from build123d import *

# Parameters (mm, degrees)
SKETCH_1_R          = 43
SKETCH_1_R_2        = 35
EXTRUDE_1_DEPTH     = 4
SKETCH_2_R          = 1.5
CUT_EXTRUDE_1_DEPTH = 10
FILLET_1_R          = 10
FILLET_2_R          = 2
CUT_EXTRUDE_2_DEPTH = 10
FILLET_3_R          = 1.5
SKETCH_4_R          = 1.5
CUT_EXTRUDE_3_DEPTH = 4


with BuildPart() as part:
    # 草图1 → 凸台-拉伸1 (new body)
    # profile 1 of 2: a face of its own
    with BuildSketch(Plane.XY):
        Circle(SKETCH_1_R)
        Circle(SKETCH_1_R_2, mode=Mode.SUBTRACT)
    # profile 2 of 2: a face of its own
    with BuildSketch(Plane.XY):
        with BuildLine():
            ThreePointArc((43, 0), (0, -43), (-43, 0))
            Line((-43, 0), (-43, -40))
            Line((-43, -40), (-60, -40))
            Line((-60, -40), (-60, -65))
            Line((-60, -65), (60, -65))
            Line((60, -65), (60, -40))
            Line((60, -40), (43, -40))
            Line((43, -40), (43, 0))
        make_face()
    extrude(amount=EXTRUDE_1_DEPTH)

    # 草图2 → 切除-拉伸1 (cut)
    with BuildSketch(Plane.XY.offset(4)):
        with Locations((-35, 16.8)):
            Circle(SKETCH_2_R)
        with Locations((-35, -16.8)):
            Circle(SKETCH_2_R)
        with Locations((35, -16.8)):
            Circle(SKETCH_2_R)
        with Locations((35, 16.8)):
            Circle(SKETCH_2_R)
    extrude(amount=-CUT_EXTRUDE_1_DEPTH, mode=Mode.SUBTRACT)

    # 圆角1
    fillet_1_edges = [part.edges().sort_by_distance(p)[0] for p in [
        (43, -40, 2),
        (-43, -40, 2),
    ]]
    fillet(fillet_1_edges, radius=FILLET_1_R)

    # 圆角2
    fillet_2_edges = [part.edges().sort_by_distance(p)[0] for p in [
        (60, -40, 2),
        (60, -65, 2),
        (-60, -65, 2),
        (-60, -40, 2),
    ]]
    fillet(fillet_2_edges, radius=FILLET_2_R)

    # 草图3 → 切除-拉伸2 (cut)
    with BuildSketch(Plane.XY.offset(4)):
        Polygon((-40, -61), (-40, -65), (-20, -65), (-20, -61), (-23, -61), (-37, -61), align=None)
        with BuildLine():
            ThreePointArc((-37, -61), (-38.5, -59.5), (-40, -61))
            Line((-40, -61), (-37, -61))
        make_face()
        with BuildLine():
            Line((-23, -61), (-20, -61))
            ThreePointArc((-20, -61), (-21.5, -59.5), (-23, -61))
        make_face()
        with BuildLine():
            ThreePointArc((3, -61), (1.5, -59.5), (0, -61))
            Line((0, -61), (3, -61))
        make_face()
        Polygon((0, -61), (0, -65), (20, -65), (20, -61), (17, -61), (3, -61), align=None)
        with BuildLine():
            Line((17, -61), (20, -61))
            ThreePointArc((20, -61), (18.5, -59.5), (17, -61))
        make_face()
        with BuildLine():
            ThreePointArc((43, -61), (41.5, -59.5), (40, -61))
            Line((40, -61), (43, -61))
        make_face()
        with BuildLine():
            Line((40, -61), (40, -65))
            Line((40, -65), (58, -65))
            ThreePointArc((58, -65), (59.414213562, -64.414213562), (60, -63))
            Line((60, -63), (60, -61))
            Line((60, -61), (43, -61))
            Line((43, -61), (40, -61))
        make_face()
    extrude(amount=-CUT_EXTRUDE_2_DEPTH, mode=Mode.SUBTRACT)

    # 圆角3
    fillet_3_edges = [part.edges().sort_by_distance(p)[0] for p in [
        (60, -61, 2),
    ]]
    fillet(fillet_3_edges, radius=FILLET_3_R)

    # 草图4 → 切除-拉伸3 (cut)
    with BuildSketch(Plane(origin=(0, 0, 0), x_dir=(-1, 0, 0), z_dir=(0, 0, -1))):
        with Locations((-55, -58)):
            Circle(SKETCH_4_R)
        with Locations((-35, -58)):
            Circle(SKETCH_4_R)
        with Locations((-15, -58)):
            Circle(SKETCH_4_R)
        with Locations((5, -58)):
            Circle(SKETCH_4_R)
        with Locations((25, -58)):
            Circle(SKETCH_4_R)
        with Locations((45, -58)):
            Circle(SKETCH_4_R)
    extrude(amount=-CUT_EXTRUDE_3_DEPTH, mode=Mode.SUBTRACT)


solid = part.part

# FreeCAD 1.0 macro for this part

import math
import FreeCAD as App
import Part
import Sketcher

V = App.Vector
Q = App.Units.Quantity


def edges_at(feature, points):
    """Names of the edges that pass closest to the given points."""
    edges = feature.Shape.Edges
    near = lambda p: min(range(len(edges)), key=lambda i: edges[i].distToShape(Part.Vertex(*p))[0])
    return sorted({f"Edge{near(p) + 1}" for p in points})

doc = App.newDocument("Part")
body = doc.addObject("PartDesign::Body", "Body")

sketch1 = doc.addObject("Sketcher::SketchObject", "Sketch")
body.addObject(sketch1)
sketch1.AttachmentSupport = (doc.XY_Plane, [""])
sketch1.MapMode = "FlatFace"
sketch1.addGeometry([
    Part.ArcOfCircle(Part.Circle(V(0, 0, 0), V(0, 0, 1), 43), math.radians(0), math.radians(180)),
    Part.LineSegment(V(-43, 0, 0), V(-43, -40, 0)),
    Part.LineSegment(V(-43, -40, 0), V(-60, -40, 0)),
    Part.LineSegment(V(-60, -40, 0), V(-60, -65, 0)),
    Part.LineSegment(V(-60, -65, 0), V(60, -65, 0)),
    Part.LineSegment(V(60, -65, 0), V(60, -40, 0)),
    Part.LineSegment(V(60, -40, 0), V(43, -40, 0)),
    Part.LineSegment(V(43, -40, 0), V(43, 0, 0)),
    Part.Circle(V(0, 0, 0), V(0, 0, 1), 35),
], False)
sketch1.addConstraint([
    Sketcher.Constraint("Tangent", 0, 2, 1, 1),
    Sketcher.Constraint("Coincident", 1, 2, 2, 1),
    Sketcher.Constraint("Coincident", 2, 2, 3, 1),
    Sketcher.Constraint("Coincident", 3, 2, 4, 1),
    Sketcher.Constraint("Coincident", 4, 2, 5, 1),
    Sketcher.Constraint("Coincident", 5, 2, 6, 1),
    Sketcher.Constraint("Coincident", 6, 2, 7, 1),
    Sketcher.Constraint("Tangent", 7, 2, 0, 1),
    Sketcher.Constraint("Vertical", 1),
    Sketcher.Constraint("Horizontal", 2),
    Sketcher.Constraint("Vertical", 3),
    Sketcher.Constraint("Horizontal", 4),
    Sketcher.Constraint("Vertical", 5),
    Sketcher.Constraint("Horizontal", 6),
    Sketcher.Constraint("Vertical", 7),
    Sketcher.Constraint("Coincident", 0, 3, -1, 1),
    Sketcher.Constraint("Coincident", 8, 3, -1, 1),
    Sketcher.Constraint("Symmetric", 2, 2, 5, 2, -2),
    Sketcher.Constraint("Diameter", 8, Q("70 mm")),
    Sketcher.Constraint("Radius", 0, Q("43 mm")),
    Sketcher.Constraint("DistanceX", 2, 2, 2, 1, Q("17 mm")),
    Sketcher.Constraint("DistanceY", 1, 2, 1, 1, Q("40 mm")),
    Sketcher.Constraint("DistanceY", 3, 2, 3, 1, Q("25 mm")),
])
pad1 = doc.addObject("PartDesign::Pad", "Pad")
body.addObject(pad1)
pad1.Profile = sketch1
pad1.Length = 4

sketch2 = doc.addObject("Sketcher::SketchObject", "Sketch001")
body.addObject(sketch2)
sketch2.AttachmentSupport = (doc.XY_Plane, [""])
sketch2.MapMode = "FlatFace"
sketch2.AttachmentOffset = App.Placement(V(0, 0, 4), App.Rotation())
sketch2.addGeometry([
    Part.Circle(V(-35, 16.8, 0), V(0, 0, 1), 1.5),
    Part.Circle(V(-35, -16.8, 0), V(0, 0, 1), 1.5),
    Part.Circle(V(35, -16.8, 0), V(0, 0, 1), 1.5),
    Part.Circle(V(35, 16.8, 0), V(0, 0, 1), 1.5),
], False)
sketch2.addConstraint([
    Sketcher.Constraint("Equal", 0, 1),
    Sketcher.Constraint("Equal", 1, 2),
    Sketcher.Constraint("Equal", 2, 3),
    Sketcher.Constraint("Symmetric", 0, 3, 2, 3, -1, 1),
    Sketcher.Constraint("Symmetric", 1, 3, 3, 3, -1, 1),
    Sketcher.Constraint("Symmetric", 1, 3, 2, 3, -2),
    Sketcher.Constraint("Diameter", 0, Q("3 mm")),
    Sketcher.Constraint("DistanceX", 0, 3, -1, 1, Q("35 mm")),
    Sketcher.Constraint("DistanceY", -1, 1, 0, 3, Q("16.8 mm")),
])
pocket1 = doc.addObject("PartDesign::Pocket", "Pocket")
body.addObject(pocket1)
pocket1.Profile = sketch2
pocket1.Length = 10
doc.recompute()

fillet = doc.addObject("PartDesign::Fillet", "Fillet")
body.addObject(fillet)
fillet.Base = (pocket1, edges_at(pocket1, [(43, -40, 2), (-43, -40, 2)]))
fillet.Radius = 10
doc.recompute()

fillet2 = doc.addObject("PartDesign::Fillet", "Fillet001")
body.addObject(fillet2)
fillet2.Base = (fillet, edges_at(fillet, [
    (60, -40, 2),
    (60, -65, 2),
    (-60, -65, 2),
    (-60, -40, 2),
]))
fillet2.Radius = 2

sketch3 = doc.addObject("Sketcher::SketchObject", "Sketch002")
body.addObject(sketch3)
sketch3.AttachmentSupport = (doc.XY_Plane, [""])
sketch3.MapMode = "FlatFace"
sketch3.AttachmentOffset = App.Placement(V(0, 0, 4), App.Rotation())
sketch3.addGeometry([
    Part.LineSegment(V(-40, -61, 0), V(-40, -65, 0)),
    Part.LineSegment(V(-40, -65, 0), V(-20, -65, 0)),
    Part.LineSegment(V(-20, -65, 0), V(-20, -61, 0)),
    Part.ArcOfCircle(Part.Circle(V(-21.5, -61, 0), V(0, 0, 1), 1.5), math.radians(0), math.radians(180)),
    Part.LineSegment(V(-23, -61, 0), V(-37, -61, 0)),
    Part.ArcOfCircle(Part.Circle(V(-38.5, -61, 0), V(0, 0, 1), 1.5), math.radians(0), math.radians(180)),
    Part.ArcOfCircle(Part.Circle(V(1.5, -61, 0), V(0, 0, 1), 1.5), math.radians(0), math.radians(180)),
    Part.LineSegment(V(0, -61, 0), V(0, -65, 0)),
    Part.LineSegment(V(0, -65, 0), V(20, -65, 0)),
    Part.LineSegment(V(20, -65, 0), V(20, -61, 0)),
    Part.ArcOfCircle(Part.Circle(V(18.5, -61, 0), V(0, 0, 1), 1.5), math.radians(0), math.radians(180)),
    Part.LineSegment(V(17, -61, 0), V(3, -61, 0)),
    Part.ArcOfCircle(Part.Circle(V(41.5, -61, 0), V(0, 0, 1), 1.5), math.radians(0), math.radians(180)),
    Part.LineSegment(V(40, -61, 0), V(40, -65, 0)),
    Part.LineSegment(V(40, -65, 0), V(58, -65, 0)),
    Part.ArcOfCircle(Part.Circle(V(58, -63, 0), V(0, 0, 1), 2), math.radians(-90), math.radians(0)),
    Part.LineSegment(V(60, -63, 0), V(60, -61, 0)),
    Part.LineSegment(V(60, -61, 0), V(43, -61, 0)),
], False)
sketch3.addConstraint([
    Sketcher.Constraint("Coincident", 0, 2, 1, 1),
    Sketcher.Constraint("Coincident", 1, 2, 2, 1),
    Sketcher.Constraint("Tangent", 2, 2, 3, 1),
    Sketcher.Constraint("Coincident", 3, 2, 4, 1),
    Sketcher.Constraint("Coincident", 4, 2, 5, 1),
    Sketcher.Constraint("Tangent", 5, 2, 0, 1),
    Sketcher.Constraint("Tangent", 6, 2, 7, 1),
    Sketcher.Constraint("Coincident", 7, 2, 8, 1),
    Sketcher.Constraint("Coincident", 8, 2, 9, 1),
    Sketcher.Constraint("Tangent", 9, 2, 10, 1),
    Sketcher.Constraint("Coincident", 10, 2, 11, 1),
    Sketcher.Constraint("Coincident", 11, 2, 6, 1),
    Sketcher.Constraint("Tangent", 12, 2, 13, 1),
    Sketcher.Constraint("Coincident", 13, 2, 14, 1),
    Sketcher.Constraint("Tangent", 14, 2, 15, 1),
    Sketcher.Constraint("Tangent", 15, 2, 16, 1),
    Sketcher.Constraint("Coincident", 16, 2, 17, 1),
    Sketcher.Constraint("Coincident", 17, 2, 12, 1),
    Sketcher.Constraint("Vertical", 0),
    Sketcher.Constraint("Horizontal", 1),
    Sketcher.Constraint("Vertical", 2),
    Sketcher.Constraint("Horizontal", 4),
    Sketcher.Constraint("Vertical", 7),
    Sketcher.Constraint("Horizontal", 8),
    Sketcher.Constraint("Vertical", 9),
    Sketcher.Constraint("Horizontal", 11),
    Sketcher.Constraint("Vertical", 13),
    Sketcher.Constraint("Horizontal", 14),
    Sketcher.Constraint("Vertical", 16),
    Sketcher.Constraint("Horizontal", 17),
    Sketcher.Constraint("Equal", 3, 5),
    Sketcher.Constraint("Equal", 5, 6),
    Sketcher.Constraint("Equal", 6, 10),
    Sketcher.Constraint("Equal", 10, 12),
    Sketcher.Constraint("Symmetric", 1, 2, 8, 2, -2),
    Sketcher.Constraint("Symmetric", 5, 2, 12, 2, -2),
    Sketcher.Constraint("PointOnObject", 6, 2, -2),
    Sketcher.Constraint("Horizontal", 3, 3, 5, 3),
    Sketcher.Constraint("Horizontal", 5, 3, 6, 3),
    Sketcher.Constraint("Horizontal", 6, 3, 10, 3),
    Sketcher.Constraint("Horizontal", 2, 2, 3, 2),
    Sketcher.Constraint("Horizontal", 9, 2, 10, 2),
    Sketcher.Constraint("Horizontal", 8, 2, 13, 2),
    Sketcher.Constraint("Horizontal", 12, 2, 16, 2),
    Sketcher.Constraint("Equal", 1, 8),
    Sketcher.Constraint("Radius", 15, Q("2 mm")),
    Sketcher.Constraint("Radius", 3, Q("1.5 mm")),
    Sketcher.Constraint("DistanceX", 1, 1, 1, 2, Q("20 mm")),
    Sketcher.Constraint("DistanceX", 14, 1, 14, 2, Q("18 mm")),
    Sketcher.Constraint("DistanceY", 0, 2, 0, 1, Q("4 mm")),
    Sketcher.Constraint("DistanceY", 3, 3, -1, 1, Q("61 mm")),
])
pocket2 = doc.addObject("PartDesign::Pocket", "Pocket001")
body.addObject(pocket2)
pocket2.Profile = sketch3
pocket2.Length = 10
doc.recompute()

fillet3 = doc.addObject("PartDesign::Fillet", "Fillet002")
body.addObject(fillet3)
fillet3.Base = (pocket2, edges_at(pocket2, [(60, -61, 2)]))
fillet3.Radius = 1.5

sketch4 = doc.addObject("Sketcher::SketchObject", "Sketch003")
body.addObject(sketch4)
sketch4.AttachmentSupport = (doc.XY_Plane, [""])
sketch4.MapMode = "FlatFace"
sketch4.addGeometry([
    Part.Circle(V(55, -58, 0), V(0, 0, 1), 1.5),
    Part.Circle(V(35, -58, 0), V(0, 0, 1), 1.5),
    Part.Circle(V(15, -58, 0), V(0, 0, 1), 1.5),
    Part.Circle(V(-5, -58, 0), V(0, 0, 1), 1.5),
    Part.Circle(V(-25, -58, 0), V(0, 0, 1), 1.5),
    Part.Circle(V(-45, -58, 0), V(0, 0, 1), 1.5),
], False)
sketch4.addConstraint([
    Sketcher.Constraint("Equal", 0, 1),
    Sketcher.Constraint("Equal", 1, 2),
    Sketcher.Constraint("Equal", 2, 3),
    Sketcher.Constraint("Equal", 3, 4),
    Sketcher.Constraint("Equal", 4, 5),
    Sketcher.Constraint("Horizontal", 0, 3, 1, 3),
    Sketcher.Constraint("Horizontal", 1, 3, 2, 3),
    Sketcher.Constraint("Horizontal", 2, 3, 3, 3),
    Sketcher.Constraint("Horizontal", 3, 3, 4, 3),
    Sketcher.Constraint("Horizontal", 4, 3, 5, 3),
    Sketcher.Constraint("Diameter", 0, Q("3 mm")),
    Sketcher.Constraint("DistanceX", -1, 1, 0, 3, Q("55 mm")),
    Sketcher.Constraint("DistanceY", 0, 3, -1, 1, Q("58 mm")),
    Sketcher.Constraint("DistanceX", -1, 1, 1, 3, Q("35 mm")),
    Sketcher.Constraint("DistanceX", -1, 1, 2, 3, Q("15 mm")),
    Sketcher.Constraint("DistanceX", 3, 3, -1, 1, Q("5 mm")),
    Sketcher.Constraint("DistanceX", 4, 3, -1, 1, Q("25 mm")),
    Sketcher.Constraint("DistanceX", 5, 3, -1, 1, Q("45 mm")),
])
pocket3 = doc.addObject("PartDesign::Pocket", "Pocket002")
body.addObject(pocket3)
pocket3.Profile = sketch4
pocket3.Length = 4
pocket3.Reversed = True

doc.recompute()
